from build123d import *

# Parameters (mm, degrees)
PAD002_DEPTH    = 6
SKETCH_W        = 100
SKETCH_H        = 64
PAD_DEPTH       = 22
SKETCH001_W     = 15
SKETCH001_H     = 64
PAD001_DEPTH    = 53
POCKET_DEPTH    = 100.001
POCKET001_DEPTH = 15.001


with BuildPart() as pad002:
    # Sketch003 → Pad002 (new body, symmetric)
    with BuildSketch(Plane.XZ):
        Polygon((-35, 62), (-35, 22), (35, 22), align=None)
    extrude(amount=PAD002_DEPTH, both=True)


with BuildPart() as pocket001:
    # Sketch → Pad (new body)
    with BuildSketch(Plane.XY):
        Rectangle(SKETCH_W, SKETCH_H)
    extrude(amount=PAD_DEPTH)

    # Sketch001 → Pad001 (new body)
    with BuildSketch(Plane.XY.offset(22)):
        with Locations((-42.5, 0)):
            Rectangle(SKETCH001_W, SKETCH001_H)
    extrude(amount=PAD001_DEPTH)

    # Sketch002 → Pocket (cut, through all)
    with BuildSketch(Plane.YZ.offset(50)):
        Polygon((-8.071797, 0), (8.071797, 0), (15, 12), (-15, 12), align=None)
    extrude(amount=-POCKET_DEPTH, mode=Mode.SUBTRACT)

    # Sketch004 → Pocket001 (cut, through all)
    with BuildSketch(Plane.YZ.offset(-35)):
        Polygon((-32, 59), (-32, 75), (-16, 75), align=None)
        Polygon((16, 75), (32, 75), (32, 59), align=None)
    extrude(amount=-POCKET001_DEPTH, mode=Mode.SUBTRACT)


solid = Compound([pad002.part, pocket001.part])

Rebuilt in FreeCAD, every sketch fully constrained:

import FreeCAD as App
import Part
import Sketcher
Q = App.Units.Quantity

doc = App.newDocument("Part")
body = doc.addObject("PartDesign::Body", "Body")

# Sketch on XZ plane
sketch1 = body.newObject("Sketcher::SketchObject", "Sketch")
sketch1.AttachmentSupport = (doc.getObject("XZ_Plane"), [""])
sketch1.MapMode = "FlatFace"
sketch1.addGeometry(Part.LineSegment(App.Vector(-35, 62, 0), App.Vector(-35, 22, 0)), False)
sketch1.addGeometry(Part.LineSegment(App.Vector(-35, 22, 0), App.Vector(35, 22, 0)), False)
sketch1.addGeometry(Part.LineSegment(App.Vector(35, 22, 0), App.Vector(-35, 62, 0)), False)
sketch1.addConstraint(Sketcher.Constraint("Coincident", 0, 2, 1, 1))
sketch1.addConstraint(Sketcher.Constraint("Coincident", 1, 2, 2, 1))
sketch1.addConstraint(Sketcher.Constraint("Coincident", 2, 2, 0, 1))
sketch1.addConstraint(Sketcher.Constraint("Vertical", 0))
sketch1.addConstraint(Sketcher.Constraint("Horizontal", 1))
sketch1.addConstraint(Sketcher.Constraint("DistanceX", 1, 1, 1, 2, 70.0))
sketch1.addConstraint(Sketcher.Constraint("DistanceY", 0, 2, 0, 1, 40.0))
sketch1.addConstraint(Sketcher.Constraint("DistanceX", 0, 2, -1, 1, 35.0))
sketch1.addConstraint(Sketcher.Constraint("DistanceY", -1, 1, 0, 2, 22.0))
pad1 = body.newObject("PartDesign::Pad", "Pad")
pad1.Profile = sketch1
pad1.Length = 12
pad1.Midplane = True
body2 = doc.addObject("PartDesign::Body", "Body001")

# Sketch on XY plane
sketch2 = body2.newObject("Sketcher::SketchObject", "Sketch001")
sketch2.AttachmentSupport = (doc.getObject("XY_Plane001"), [""])
sketch2.MapMode = "FlatFace"
sketch2.addGeometry(Part.LineSegment(App.Vector(-50, 32, 0), App.Vector(-50, -32, 0)), False)
sketch2.addGeometry(Part.LineSegment(App.Vector(-50, -32, 0), App.Vector(50, -32, 0)), False)
sketch2.addGeometry(Part.LineSegment(App.Vector(50, -32, 0), App.Vector(50, 32, 0)), False)
sketch2.addGeometry(Part.LineSegment(App.Vector(50, 32, 0), App.Vector(-50, 32, 0)), False)
sketch2.addConstraint(Sketcher.Constraint("Coincident", 0, 2, 1, 1))
sketch2.addConstraint(Sketcher.Constraint("Coincident", 1, 2, 2, 1))
sketch2.addConstraint(Sketcher.Constraint("Coincident", 2, 2, 3, 1))
sketch2.addConstraint(Sketcher.Constraint("Coincident", 3, 2, 0, 1))
sketch2.addConstraint(Sketcher.Constraint("Vertical", 0))
sketch2.addConstraint(Sketcher.Constraint("Horizontal", 1))
sketch2.addConstraint(Sketcher.Constraint("Vertical", 2))
sketch2.addConstraint(Sketcher.Constraint("Horizontal", 3))
sketch2.addConstraint(Sketcher.Constraint("Symmetric", 0, 2, 2, 2, -1, 1))
sketch2.addConstraint(Sketcher.Constraint("DistanceX", 1, 1, 1, 2, 100.0))
sketch2.addConstraint(Sketcher.Constraint("DistanceY", 0, 2, 0, 1, 64.0))
pad2 = body2.newObject("PartDesign::Pad", "Pad001")
pad2.Profile = sketch2
pad2.Length = 22

# Sketch on XY plane
sketch3 = body2.newObject("Sketcher::SketchObject", "Sketch002")
sketch3.AttachmentSupport = (doc.getObject("XY_Plane001"), [""])
sketch3.MapMode = "FlatFace"
sketch3.AttachmentOffset = App.Placement(App.Vector(0, 0, 22), App.Rotation())
sketch3.addGeometry(Part.LineSegment(App.Vector(-50, 32, 0), App.Vector(-50, -32, 0)), False)
sketch3.addGeometry(Part.LineSegment(App.Vector(-50, -32, 0), App.Vector(-35, -32, 0)), False)
sketch3.addGeometry(Part.LineSegment(App.Vector(-35, -32, 0), App.Vector(-35, 32, 0)), False)
sketch3.addGeometry(Part.LineSegment(App.Vector(-35, 32, 0), App.Vector(-50, 32, 0)), False)
sketch3.addConstraint(Sketcher.Constraint("Coincident", 0, 2, 1, 1))
sketch3.addConstraint(Sketcher.Constraint("Coincident", 1, 2, 2, 1))
sketch3.addConstraint(Sketcher.Constraint("Coincident", 2, 2, 3, 1))
sketch3.addConstraint(Sketcher.Constraint("Coincident", 3, 2, 0, 1))
sketch3.addConstraint(Sketcher.Constraint("Vertical", 0))
sketch3.addConstraint(Sketcher.Constraint("Horizontal", 1))
sketch3.addConstraint(Sketcher.Constraint("Vertical", 2))
sketch3.addConstraint(Sketcher.Constraint("Horizontal", 3))
sketch3.addConstraint(Sketcher.Constraint("DistanceX", 1, 1, 1, 2, 15.0))
sketch3.addConstraint(Sketcher.Constraint("DistanceY", 0, 2, 0, 1, 64.0))
sketch3.addConstraint(Sketcher.Constraint("DistanceX", 0, 2, -1, 1, 50.0))
sketch3.addConstraint(Sketcher.Constraint("DistanceY", 0, 2, -1, 1, 32.0))
pad3 = body2.newObject("PartDesign::Pad", "Pad002")
pad3.Profile = sketch3
pad3.Length = 53

# Sketch on YZ plane
sketch4 = body2.newObject("Sketcher::SketchObject", "Sketch003")
sketch4.AttachmentSupport = (doc.getObject("YZ_Plane001"), [""])
sketch4.MapMode = "FlatFace"
sketch4.AttachmentOffset = App.Placement(App.Vector(0, 0, 50), App.Rotation())
sketch4.addGeometry(Part.LineSegment(App.Vector(-8, 0, 0), App.Vector(8, 0, 0)), False)
sketch4.addGeometry(Part.LineSegment(App.Vector(8, 0, 0), App.Vector(15, 12, 0)), False)
sketch4.addGeometry(Part.LineSegment(App.Vector(15, 12, 0), App.Vector(-15, 12, 0)), False)
sketch4.addGeometry(Part.LineSegment(App.Vector(-15, 12, 0), App.Vector(-8, 0, 0)), False)
sketch4.addConstraint(Sketcher.Constraint("Coincident", 0, 2, 1, 1))
sketch4.addConstraint(Sketcher.Constraint("Coincident", 1, 2, 2, 1))
sketch4.addConstraint(Sketcher.Constraint("Coincident", 2, 2, 3, 1))
sketch4.addConstraint(Sketcher.Constraint("Coincident", 3, 2, 0, 1))
sketch4.addConstraint(Sketcher.Constraint("Horizontal", 0))
sketch4.addConstraint(Sketcher.Constraint("Horizontal", 2))
sketch4.addConstraint(Sketcher.Constraint("Symmetric", 0, 2, 3, 2, -1, 1))
sketch4.addConstraint(Sketcher.Constraint("Equal", 1, 3))
sketch4.addConstraint(Sketcher.Constraint("DistanceX", 2, 2, 2, 1, 30.0))
sketch4.addConstraint(Sketcher.Constraint("Angle", 1, Q("60.000001 deg")))
sketch4.addConstraint(Sketcher.Constraint("DistanceY", -1, 1, 1, 2, 12.0))
pocket1 = body2.newObject("PartDesign::Pocket", "Pocket")
pocket1.Profile = sketch4
pocket1.Type = "ThroughAll"

# Sketch on YZ plane
sketch5 = body2.newObject("Sketcher::SketchObject", "Sketch004")
sketch5.AttachmentSupport = (doc.getObject("YZ_Plane001"), [""])
sketch5.MapMode = "FlatFace"
sketch5.AttachmentOffset = App.Placement(App.Vector(0, 0, -35), App.Rotation())
sketch5.addGeometry(Part.LineSegment(App.Vector(-32, 75, 0), App.Vector(-32, 59, 0)), False)
sketch5.addGeometry(Part.LineSegment(App.Vector(-32, 59, 0), App.Vector(-16, 75, 0)), False)
sketch5.addGeometry(Part.LineSegment(App.Vector(-16, 75, 0), App.Vector(-32, 75, 0)), False)
sketch5.addGeometry(Part.LineSegment(App.Vector(32, 75, 0), App.Vector(16, 75, 0)), False)
sketch5.addGeometry(Part.LineSegment(App.Vector(16, 75, 0), App.Vector(32, 59, 0)), False)
sketch5.addGeometry(Part.LineSegment(App.Vector(32, 59, 0), App.Vector(32, 75, 0)), False)
sketch5.addConstraint(Sketcher.Constraint("Coincident", 0, 2, 1, 1))
sketch5.addConstraint(Sketcher.Constraint("Coincident", 1, 2, 2, 1))
sketch5.addConstraint(Sketcher.Constraint("Coincident", 2, 2, 0, 1))
sketch5.addConstraint(Sketcher.Constraint("Coincident", 3, 2, 4, 1))
sketch5.addConstraint(Sketcher.Constraint("Coincident", 4, 2, 5, 1))
sketch5.addConstraint(Sketcher.Constraint("Coincident", 5, 2, 3, 1))
sketch5.addConstraint(Sketcher.Constraint("Vertical", 0))
sketch5.addConstraint(Sketcher.Constraint("Horizontal", 2))
sketch5.addConstraint(Sketcher.Constraint("Horizontal", 3))
sketch5.addConstraint(Sketcher.Constraint("Vertical", 5))
sketch5.addConstraint(Sketcher.Constraint("Symmetric", 1, 2, 3, 2, -2))
sketch5.addConstraint(Sketcher.Constraint("Symmetric", 0, 2, 4, 2, -2))
sketch5.addConstraint(Sketcher.Constraint("Perpendicular", 1, 4))
sketch5.addConstraint(Sketcher.Constraint("DistanceX", 2, 2, 2, 1, 16.0))
sketch5.addConstraint(Sketcher.Constraint("DistanceX", 0, 2, -1, 1, 32.0))
sketch5.addConstraint(Sketcher.Constraint("DistanceY", -1, 1, 0, 2, 59.0))
pocket2 = body2.newObject("PartDesign::Pocket", "Pocket001")
pocket2.Profile = sketch5
pocket2.Type = "ThroughAll"

doc.recompute()
